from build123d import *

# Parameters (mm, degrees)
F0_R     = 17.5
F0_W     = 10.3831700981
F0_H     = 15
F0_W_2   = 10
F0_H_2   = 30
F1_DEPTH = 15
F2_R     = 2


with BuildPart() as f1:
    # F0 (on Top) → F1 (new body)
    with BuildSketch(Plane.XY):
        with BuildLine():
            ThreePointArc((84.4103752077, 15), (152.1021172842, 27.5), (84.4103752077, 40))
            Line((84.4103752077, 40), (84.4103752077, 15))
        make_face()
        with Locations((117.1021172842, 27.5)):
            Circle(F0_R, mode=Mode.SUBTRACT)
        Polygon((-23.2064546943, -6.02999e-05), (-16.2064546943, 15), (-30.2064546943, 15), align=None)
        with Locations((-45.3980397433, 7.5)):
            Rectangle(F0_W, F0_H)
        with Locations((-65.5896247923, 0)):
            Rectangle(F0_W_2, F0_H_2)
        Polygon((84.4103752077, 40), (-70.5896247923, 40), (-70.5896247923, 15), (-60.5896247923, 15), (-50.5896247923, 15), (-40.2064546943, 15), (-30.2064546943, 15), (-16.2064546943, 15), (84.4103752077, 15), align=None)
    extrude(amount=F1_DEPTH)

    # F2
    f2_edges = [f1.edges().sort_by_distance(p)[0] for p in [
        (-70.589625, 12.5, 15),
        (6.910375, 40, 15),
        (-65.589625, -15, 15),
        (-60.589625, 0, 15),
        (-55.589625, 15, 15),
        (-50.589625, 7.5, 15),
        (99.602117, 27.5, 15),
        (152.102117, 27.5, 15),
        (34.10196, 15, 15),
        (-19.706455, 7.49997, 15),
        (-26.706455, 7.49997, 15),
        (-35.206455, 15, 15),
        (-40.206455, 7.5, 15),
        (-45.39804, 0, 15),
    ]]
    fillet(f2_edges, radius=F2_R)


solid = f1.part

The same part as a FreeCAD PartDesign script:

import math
import FreeCAD as App
import Part
import Sketcher


def edges_at(feature, points):
    """Names of the edges that pass closest to the given points."""
    edges = feature.Shape.Edges
    near = lambda p: min(range(len(edges)), key=lambda i: edges[i].distToShape(Part.Vertex(*p))[0])
    return sorted({f"Edge{near(p) + 1}" for p in points})

doc = App.newDocument("Part")
body = doc.addObject("PartDesign::Body", "Body")

# Sketch on XY plane
sketch1 = body.newObject("Sketcher::SketchObject", "Sketch")
sketch1.AttachmentSupport = (doc.getObject("XY_Plane"), [""])
sketch1.MapMode = "FlatFace"
sketch1.addGeometry(Part.ArcOfCircle(Part.Circle(App.Vector(117, 28, 0), App.Vector(0, 0, 1), 35), math.radians(-159), math.radians(159)), False)
sketch1.addGeometry(Part.LineSegment(App.Vector(84, 40, 0), App.Vector(-71, 40, 0)), False)
sketch1.addGeometry(Part.LineSegment(App.Vector(-71, 40, 0), App.Vector(-71, -15, 0)), False)
sketch1.addGeometry(Part.LineSegment(App.Vector(-71, -15, 0), App.Vector(-61, -15, 0)), False)
sketch1.addGeometry(Part.LineSegment(App.Vector(-61, -15, 0), App.Vector(-61, 15, 0)), False)
sketch1.addGeometry(Part.LineSegment(App.Vector(-61, 15, 0), App.Vector(-51, 15, 0)), False)
sketch1.addGeometry(Part.LineSegment(App.Vector(-51, 15, 0), App.Vector(-51, 0, 0)), False)
sketch1.addGeometry(Part.LineSegment(App.Vector(-51, 0, 0), App.Vector(-40, 0, 0)), False)
sketch1.addGeometry(Part.LineSegment(App.Vector(-40, 0, 0), App.Vector(-40, 15, 0)), False)
sketch1.addGeometry(Part.LineSegment(App.Vector(-40, 15, 0), App.Vector(-30, 15, 0)), False)
sketch1.addGeometry(Part.LineSegment(App.Vector(-30, 15, 0), App.Vector(-23, 0, 0)), False)
sketch1.addGeometry(Part.LineSegment(App.Vector(-23, 0, 0), App.Vector(-16, 15, 0)), False)
sketch1.addGeometry(Part.LineSegment(App.Vector(-16, 15, 0), App.Vector(84, 15, 0)), False)
sketch1.addGeometry(Part.Circle(App.Vector(117, 28, 0), App.Vector(0, 0, 1), 18), False)
sketch1.addConstraint(Sketcher.Constraint("Coincident", 0, 2, 1, 1))
sketch1.addConstraint(Sketcher.Constraint("Coincident", 1, 2, 2, 1))
sketch1.addConstraint(Sketcher.Constraint("Coincident", 2, 2, 3, 1))
sketch1.addConstraint(Sketcher.Constraint("Coincident", 3, 2, 4, 1))
sketch1.addConstraint(Sketcher.Constraint("Coincident", 4, 2, 5, 1))
sketch1.addConstraint(Sketcher.Constraint("Coincident", 5, 2, 6, 1))
sketch1.addConstraint(Sketcher.Constraint("Coincident", 6, 2, 7, 1))
sketch1.addConstraint(Sketcher.Constraint("Coincident", 7, 2, 8, 1))
sketch1.addConstraint(Sketcher.Constraint("Coincident", 8, 2, 9, 1))
sketch1.addConstraint(Sketcher.Constraint("Coincident", 9, 2, 10, 1))
sketch1.addConstraint(Sketcher.Constraint("Coincident", 10, 2, 11, 1))
sketch1.addConstraint(Sketcher.Constraint("Coincident", 11, 2, 12, 1))
sketch1.addConstraint(Sketcher.Constraint("Coincident", 12, 2, 0, 1))
sketch1.addConstraint(Sketcher.Constraint("Horizontal", 1))
sketch1.addConstraint(Sketcher.Constraint("Vertical", 2))
sketch1.addConstraint(Sketcher.Constraint("Horizontal", 3))
sketch1.addConstraint(Sketcher.Constraint("Vertical", 4))
sketch1.addConstraint(Sketcher.Constraint("Horizontal", 5))
sketch1.addConstraint(Sketcher.Constraint("Vertical", 6))
sketch1.addConstraint(Sketcher.Constraint("Horizontal", 7))
sketch1.addConstraint(Sketcher.Constraint("Vertical", 8))
sketch1.addConstraint(Sketcher.Constraint("Horizontal", 9))
sketch1.addConstraint(Sketcher.Constraint("Horizontal", 12))
sketch1.addConstraint(Sketcher.Constraint("Coincident", 13, 3, 0, 3))
sketch1.addConstraint(Sketcher.Constraint("PointOnObject", 6, 2, -1))
sketch1.addConstraint(Sketcher.Constraint("Horizontal", 5, 2, 8, 2))
sketch1.addConstraint(Sketcher.Constraint("Horizontal", 9, 2, 11, 2))
sketch1.addConstraint(Sketcher.Constraint("Vertical", 0, 2, 12, 2))
sketch1.addConstraint(Sketcher.Constraint("Equal", 3, 5))
sketch1.addConstraint(Sketcher.Constraint("Equal", 5, 9))
sketch1.addConstraint(Sketcher.Constraint("Equal", 10, 11))
sketch1.addConstraint(Sketcher.Constraint("Diameter", 13, 35.0))
sketch1.addConstraint(Sketcher.Constraint("Radius", 0, 35.0))
sketch1.addConstraint(Sketcher.Constraint("DistanceX", 1, 2, 1, 1, 155.0))
sketch1.addConstraint(Sketcher.Constraint("DistanceX", 3, 1, 3, 2, 10.0))
sketch1.addConstraint(Sketcher.Constraint("DistanceY", 2, 2, 2, 1, 55.0))
sketch1.addConstraint(Sketcher.Constraint("DistanceY", 4, 1, 4, 2, 30.0))
sketch1.addConstraint(Sketcher.Constraint("DistanceY", 6, 2, 6, 1, 15.0))
sketch1.addConstraint(Sketcher.Constraint("DistanceX", 9, 2, 10, 2, 7.0))
sketch1.addConstraint(Sketcher.Constraint("Distance", 10, 16.553))
sketch1.addConstraint(Sketcher.Constraint("DistanceX", 7, 1, 7, 2, 10.38317))
sketch1.addConstraint(Sketcher.Constraint("DistanceX", -1, 1, 0, 3, 117.102117))
pad1 = body.newObject("PartDesign::Pad", "Pad")
pad1.Profile = sketch1
pad1.Length = 15
doc.recompute()

fillet = body.newObject("PartDesign::Fillet", "Fillet")
fillet.Base = (pad1, edges_at(pad1, [
    (-70.59, 12.5, 15),
    (6.91, 40, 15),
    (-65.59, -15, 15),
    (-60.59, 0, 15),
    (-55.59, 15, 15),
    (-50.59, 7.5, 15),
    (99.602, 27.5, 15),
    (152.102, 27.5, 15),
    (34.102, 15, 15),
    (-19.706, 7.5, 15),
    (-26.706, 7.5, 15),
    (-35.206, 15, 15),
    (-40.206, 7.5, 15),
    (-45.398, 0, 15),
]))
fillet.Radius = 2

doc.recompute()
